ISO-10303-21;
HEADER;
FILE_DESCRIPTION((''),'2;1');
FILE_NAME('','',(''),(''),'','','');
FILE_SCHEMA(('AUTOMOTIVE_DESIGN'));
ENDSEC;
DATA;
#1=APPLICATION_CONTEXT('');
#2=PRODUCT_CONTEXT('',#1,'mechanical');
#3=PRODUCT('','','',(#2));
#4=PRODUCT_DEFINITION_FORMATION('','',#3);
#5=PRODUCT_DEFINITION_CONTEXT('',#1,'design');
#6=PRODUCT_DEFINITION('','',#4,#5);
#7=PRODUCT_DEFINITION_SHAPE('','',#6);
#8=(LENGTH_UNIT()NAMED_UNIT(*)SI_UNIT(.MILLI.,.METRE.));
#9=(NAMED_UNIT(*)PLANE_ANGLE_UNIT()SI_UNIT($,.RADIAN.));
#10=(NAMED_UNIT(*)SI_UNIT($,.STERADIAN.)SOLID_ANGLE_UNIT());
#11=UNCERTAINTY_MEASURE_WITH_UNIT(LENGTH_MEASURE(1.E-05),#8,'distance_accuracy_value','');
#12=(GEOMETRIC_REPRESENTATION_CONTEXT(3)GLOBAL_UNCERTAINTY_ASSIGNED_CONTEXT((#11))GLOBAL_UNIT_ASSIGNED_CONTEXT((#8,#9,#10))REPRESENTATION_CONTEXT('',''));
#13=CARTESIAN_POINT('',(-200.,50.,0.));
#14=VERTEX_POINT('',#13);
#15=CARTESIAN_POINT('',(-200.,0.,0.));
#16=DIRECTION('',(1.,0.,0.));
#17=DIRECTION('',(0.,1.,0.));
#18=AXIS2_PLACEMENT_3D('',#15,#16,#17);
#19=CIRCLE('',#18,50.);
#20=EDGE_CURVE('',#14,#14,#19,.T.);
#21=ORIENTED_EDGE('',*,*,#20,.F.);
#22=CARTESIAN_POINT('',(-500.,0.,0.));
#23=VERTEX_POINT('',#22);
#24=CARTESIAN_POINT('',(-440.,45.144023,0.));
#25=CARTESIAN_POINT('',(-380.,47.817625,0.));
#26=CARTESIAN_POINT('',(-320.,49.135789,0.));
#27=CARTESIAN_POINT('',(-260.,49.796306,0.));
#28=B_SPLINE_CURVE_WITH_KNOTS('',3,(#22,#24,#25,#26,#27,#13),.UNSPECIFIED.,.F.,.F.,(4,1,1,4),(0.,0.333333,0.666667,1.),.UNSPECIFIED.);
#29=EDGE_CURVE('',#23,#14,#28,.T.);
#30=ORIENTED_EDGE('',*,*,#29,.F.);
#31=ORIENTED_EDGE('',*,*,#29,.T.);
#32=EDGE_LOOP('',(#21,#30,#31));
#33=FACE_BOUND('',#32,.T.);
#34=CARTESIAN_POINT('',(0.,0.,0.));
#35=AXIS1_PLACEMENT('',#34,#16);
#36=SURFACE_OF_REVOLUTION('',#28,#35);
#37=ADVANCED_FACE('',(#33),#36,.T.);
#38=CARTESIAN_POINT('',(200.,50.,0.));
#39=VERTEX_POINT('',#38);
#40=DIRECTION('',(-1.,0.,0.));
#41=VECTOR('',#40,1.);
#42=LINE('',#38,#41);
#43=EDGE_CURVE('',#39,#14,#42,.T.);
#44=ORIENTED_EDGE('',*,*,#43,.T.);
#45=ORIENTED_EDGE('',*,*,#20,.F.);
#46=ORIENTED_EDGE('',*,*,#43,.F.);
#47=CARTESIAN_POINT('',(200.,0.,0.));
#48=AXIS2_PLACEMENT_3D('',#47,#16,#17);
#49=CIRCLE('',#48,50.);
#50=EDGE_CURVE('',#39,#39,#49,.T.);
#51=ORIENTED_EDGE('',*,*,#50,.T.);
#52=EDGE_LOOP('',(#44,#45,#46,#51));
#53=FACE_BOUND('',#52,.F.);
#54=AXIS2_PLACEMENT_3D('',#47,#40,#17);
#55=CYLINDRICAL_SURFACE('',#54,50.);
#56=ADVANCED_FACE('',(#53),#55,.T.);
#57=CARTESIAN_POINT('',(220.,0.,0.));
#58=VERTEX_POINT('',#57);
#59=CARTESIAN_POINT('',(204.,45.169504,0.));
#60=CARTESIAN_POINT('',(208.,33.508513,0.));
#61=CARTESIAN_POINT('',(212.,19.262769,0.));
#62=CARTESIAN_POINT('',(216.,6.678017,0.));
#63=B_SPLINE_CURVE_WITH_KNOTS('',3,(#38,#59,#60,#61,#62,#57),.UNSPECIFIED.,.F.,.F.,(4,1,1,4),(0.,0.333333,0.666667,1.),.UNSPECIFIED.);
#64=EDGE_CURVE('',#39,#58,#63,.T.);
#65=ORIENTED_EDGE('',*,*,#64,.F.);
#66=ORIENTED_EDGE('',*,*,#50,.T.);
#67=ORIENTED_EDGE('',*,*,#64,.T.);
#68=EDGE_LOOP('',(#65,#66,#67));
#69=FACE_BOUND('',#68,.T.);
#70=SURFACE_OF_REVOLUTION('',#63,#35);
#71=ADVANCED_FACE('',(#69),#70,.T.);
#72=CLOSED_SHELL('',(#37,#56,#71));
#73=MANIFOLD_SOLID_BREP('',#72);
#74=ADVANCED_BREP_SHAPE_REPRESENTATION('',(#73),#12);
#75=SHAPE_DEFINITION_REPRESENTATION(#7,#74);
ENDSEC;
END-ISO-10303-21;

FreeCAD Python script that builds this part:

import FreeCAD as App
import Part
import Sketcher
from FreeCAD import Vector

doc = App.newDocument("Part")
body = doc.addObject("PartDesign::Body", "Body")

# Sketch on XY plane
sketch1 = body.newObject("Sketcher::SketchObject", "Sketch")
sketch1.AttachmentSupport = (doc.getObject("XY_Plane"), [""])
sketch1.MapMode = "FlatFace"
sketch1.addGeometry(Part.BSplineCurve([Vector(200, 50, 0), Vector(204, 45.169504, 0), Vector(208, 33.508513, 0), Vector(212, 19.262769, 0), Vector(216, 6.678017, 0), Vector(220, 0, 0)], [4, 1, 1, 4], [0, 0.333333, 0.666667, 1], False, 3, [1, 1, 1, 1, 1, 1], False), False)
sketch1.addGeometry(Part.LineSegment(Vector(200, 50, 0), Vector(-200, 50, 0)), False)
sketch1.addGeometry(Part.BSplineCurve([Vector(-500, 0, 0), Vector(-440, 45.144023, 0), Vector(-380, 47.817625, 0), Vector(-320, 49.135789, 0), Vector(-260, 49.796306, 0), Vector(-200, 50, 0)], [4, 1, 1, 4], [0, 0.333333, 0.666667, 1], False, 3, [1, 1, 1, 1, 1, 1], False), False)
sketch1.addGeometry(Part.LineSegment(Vector(-500, 0, 0), Vector(220, 0, 0)), False)
sketch1.addConstraint(Sketcher.Constraint("Block", 0))
sketch1.addConstraint(Sketcher.Constraint("Block", 2))
sketch1.addConstraint(Sketcher.Constraint("Coincident", 0, 1, 1, 1))
sketch1.addConstraint(Sketcher.Constraint("Coincident", 1, 2, 2, 2))
sketch1.addConstraint(Sketcher.Constraint("Coincident", 2, 1, 3, 1))
sketch1.addConstraint(Sketcher.Constraint("Coincident", 3, 2, 0, 2))
revolution = body.newObject("PartDesign::Revolution", "Revolution")
revolution.Profile = sketch1
revolution.ReferenceAxis = (sketch1, ["H_Axis"])
revolution.Angle = 360

doc.recompute()
